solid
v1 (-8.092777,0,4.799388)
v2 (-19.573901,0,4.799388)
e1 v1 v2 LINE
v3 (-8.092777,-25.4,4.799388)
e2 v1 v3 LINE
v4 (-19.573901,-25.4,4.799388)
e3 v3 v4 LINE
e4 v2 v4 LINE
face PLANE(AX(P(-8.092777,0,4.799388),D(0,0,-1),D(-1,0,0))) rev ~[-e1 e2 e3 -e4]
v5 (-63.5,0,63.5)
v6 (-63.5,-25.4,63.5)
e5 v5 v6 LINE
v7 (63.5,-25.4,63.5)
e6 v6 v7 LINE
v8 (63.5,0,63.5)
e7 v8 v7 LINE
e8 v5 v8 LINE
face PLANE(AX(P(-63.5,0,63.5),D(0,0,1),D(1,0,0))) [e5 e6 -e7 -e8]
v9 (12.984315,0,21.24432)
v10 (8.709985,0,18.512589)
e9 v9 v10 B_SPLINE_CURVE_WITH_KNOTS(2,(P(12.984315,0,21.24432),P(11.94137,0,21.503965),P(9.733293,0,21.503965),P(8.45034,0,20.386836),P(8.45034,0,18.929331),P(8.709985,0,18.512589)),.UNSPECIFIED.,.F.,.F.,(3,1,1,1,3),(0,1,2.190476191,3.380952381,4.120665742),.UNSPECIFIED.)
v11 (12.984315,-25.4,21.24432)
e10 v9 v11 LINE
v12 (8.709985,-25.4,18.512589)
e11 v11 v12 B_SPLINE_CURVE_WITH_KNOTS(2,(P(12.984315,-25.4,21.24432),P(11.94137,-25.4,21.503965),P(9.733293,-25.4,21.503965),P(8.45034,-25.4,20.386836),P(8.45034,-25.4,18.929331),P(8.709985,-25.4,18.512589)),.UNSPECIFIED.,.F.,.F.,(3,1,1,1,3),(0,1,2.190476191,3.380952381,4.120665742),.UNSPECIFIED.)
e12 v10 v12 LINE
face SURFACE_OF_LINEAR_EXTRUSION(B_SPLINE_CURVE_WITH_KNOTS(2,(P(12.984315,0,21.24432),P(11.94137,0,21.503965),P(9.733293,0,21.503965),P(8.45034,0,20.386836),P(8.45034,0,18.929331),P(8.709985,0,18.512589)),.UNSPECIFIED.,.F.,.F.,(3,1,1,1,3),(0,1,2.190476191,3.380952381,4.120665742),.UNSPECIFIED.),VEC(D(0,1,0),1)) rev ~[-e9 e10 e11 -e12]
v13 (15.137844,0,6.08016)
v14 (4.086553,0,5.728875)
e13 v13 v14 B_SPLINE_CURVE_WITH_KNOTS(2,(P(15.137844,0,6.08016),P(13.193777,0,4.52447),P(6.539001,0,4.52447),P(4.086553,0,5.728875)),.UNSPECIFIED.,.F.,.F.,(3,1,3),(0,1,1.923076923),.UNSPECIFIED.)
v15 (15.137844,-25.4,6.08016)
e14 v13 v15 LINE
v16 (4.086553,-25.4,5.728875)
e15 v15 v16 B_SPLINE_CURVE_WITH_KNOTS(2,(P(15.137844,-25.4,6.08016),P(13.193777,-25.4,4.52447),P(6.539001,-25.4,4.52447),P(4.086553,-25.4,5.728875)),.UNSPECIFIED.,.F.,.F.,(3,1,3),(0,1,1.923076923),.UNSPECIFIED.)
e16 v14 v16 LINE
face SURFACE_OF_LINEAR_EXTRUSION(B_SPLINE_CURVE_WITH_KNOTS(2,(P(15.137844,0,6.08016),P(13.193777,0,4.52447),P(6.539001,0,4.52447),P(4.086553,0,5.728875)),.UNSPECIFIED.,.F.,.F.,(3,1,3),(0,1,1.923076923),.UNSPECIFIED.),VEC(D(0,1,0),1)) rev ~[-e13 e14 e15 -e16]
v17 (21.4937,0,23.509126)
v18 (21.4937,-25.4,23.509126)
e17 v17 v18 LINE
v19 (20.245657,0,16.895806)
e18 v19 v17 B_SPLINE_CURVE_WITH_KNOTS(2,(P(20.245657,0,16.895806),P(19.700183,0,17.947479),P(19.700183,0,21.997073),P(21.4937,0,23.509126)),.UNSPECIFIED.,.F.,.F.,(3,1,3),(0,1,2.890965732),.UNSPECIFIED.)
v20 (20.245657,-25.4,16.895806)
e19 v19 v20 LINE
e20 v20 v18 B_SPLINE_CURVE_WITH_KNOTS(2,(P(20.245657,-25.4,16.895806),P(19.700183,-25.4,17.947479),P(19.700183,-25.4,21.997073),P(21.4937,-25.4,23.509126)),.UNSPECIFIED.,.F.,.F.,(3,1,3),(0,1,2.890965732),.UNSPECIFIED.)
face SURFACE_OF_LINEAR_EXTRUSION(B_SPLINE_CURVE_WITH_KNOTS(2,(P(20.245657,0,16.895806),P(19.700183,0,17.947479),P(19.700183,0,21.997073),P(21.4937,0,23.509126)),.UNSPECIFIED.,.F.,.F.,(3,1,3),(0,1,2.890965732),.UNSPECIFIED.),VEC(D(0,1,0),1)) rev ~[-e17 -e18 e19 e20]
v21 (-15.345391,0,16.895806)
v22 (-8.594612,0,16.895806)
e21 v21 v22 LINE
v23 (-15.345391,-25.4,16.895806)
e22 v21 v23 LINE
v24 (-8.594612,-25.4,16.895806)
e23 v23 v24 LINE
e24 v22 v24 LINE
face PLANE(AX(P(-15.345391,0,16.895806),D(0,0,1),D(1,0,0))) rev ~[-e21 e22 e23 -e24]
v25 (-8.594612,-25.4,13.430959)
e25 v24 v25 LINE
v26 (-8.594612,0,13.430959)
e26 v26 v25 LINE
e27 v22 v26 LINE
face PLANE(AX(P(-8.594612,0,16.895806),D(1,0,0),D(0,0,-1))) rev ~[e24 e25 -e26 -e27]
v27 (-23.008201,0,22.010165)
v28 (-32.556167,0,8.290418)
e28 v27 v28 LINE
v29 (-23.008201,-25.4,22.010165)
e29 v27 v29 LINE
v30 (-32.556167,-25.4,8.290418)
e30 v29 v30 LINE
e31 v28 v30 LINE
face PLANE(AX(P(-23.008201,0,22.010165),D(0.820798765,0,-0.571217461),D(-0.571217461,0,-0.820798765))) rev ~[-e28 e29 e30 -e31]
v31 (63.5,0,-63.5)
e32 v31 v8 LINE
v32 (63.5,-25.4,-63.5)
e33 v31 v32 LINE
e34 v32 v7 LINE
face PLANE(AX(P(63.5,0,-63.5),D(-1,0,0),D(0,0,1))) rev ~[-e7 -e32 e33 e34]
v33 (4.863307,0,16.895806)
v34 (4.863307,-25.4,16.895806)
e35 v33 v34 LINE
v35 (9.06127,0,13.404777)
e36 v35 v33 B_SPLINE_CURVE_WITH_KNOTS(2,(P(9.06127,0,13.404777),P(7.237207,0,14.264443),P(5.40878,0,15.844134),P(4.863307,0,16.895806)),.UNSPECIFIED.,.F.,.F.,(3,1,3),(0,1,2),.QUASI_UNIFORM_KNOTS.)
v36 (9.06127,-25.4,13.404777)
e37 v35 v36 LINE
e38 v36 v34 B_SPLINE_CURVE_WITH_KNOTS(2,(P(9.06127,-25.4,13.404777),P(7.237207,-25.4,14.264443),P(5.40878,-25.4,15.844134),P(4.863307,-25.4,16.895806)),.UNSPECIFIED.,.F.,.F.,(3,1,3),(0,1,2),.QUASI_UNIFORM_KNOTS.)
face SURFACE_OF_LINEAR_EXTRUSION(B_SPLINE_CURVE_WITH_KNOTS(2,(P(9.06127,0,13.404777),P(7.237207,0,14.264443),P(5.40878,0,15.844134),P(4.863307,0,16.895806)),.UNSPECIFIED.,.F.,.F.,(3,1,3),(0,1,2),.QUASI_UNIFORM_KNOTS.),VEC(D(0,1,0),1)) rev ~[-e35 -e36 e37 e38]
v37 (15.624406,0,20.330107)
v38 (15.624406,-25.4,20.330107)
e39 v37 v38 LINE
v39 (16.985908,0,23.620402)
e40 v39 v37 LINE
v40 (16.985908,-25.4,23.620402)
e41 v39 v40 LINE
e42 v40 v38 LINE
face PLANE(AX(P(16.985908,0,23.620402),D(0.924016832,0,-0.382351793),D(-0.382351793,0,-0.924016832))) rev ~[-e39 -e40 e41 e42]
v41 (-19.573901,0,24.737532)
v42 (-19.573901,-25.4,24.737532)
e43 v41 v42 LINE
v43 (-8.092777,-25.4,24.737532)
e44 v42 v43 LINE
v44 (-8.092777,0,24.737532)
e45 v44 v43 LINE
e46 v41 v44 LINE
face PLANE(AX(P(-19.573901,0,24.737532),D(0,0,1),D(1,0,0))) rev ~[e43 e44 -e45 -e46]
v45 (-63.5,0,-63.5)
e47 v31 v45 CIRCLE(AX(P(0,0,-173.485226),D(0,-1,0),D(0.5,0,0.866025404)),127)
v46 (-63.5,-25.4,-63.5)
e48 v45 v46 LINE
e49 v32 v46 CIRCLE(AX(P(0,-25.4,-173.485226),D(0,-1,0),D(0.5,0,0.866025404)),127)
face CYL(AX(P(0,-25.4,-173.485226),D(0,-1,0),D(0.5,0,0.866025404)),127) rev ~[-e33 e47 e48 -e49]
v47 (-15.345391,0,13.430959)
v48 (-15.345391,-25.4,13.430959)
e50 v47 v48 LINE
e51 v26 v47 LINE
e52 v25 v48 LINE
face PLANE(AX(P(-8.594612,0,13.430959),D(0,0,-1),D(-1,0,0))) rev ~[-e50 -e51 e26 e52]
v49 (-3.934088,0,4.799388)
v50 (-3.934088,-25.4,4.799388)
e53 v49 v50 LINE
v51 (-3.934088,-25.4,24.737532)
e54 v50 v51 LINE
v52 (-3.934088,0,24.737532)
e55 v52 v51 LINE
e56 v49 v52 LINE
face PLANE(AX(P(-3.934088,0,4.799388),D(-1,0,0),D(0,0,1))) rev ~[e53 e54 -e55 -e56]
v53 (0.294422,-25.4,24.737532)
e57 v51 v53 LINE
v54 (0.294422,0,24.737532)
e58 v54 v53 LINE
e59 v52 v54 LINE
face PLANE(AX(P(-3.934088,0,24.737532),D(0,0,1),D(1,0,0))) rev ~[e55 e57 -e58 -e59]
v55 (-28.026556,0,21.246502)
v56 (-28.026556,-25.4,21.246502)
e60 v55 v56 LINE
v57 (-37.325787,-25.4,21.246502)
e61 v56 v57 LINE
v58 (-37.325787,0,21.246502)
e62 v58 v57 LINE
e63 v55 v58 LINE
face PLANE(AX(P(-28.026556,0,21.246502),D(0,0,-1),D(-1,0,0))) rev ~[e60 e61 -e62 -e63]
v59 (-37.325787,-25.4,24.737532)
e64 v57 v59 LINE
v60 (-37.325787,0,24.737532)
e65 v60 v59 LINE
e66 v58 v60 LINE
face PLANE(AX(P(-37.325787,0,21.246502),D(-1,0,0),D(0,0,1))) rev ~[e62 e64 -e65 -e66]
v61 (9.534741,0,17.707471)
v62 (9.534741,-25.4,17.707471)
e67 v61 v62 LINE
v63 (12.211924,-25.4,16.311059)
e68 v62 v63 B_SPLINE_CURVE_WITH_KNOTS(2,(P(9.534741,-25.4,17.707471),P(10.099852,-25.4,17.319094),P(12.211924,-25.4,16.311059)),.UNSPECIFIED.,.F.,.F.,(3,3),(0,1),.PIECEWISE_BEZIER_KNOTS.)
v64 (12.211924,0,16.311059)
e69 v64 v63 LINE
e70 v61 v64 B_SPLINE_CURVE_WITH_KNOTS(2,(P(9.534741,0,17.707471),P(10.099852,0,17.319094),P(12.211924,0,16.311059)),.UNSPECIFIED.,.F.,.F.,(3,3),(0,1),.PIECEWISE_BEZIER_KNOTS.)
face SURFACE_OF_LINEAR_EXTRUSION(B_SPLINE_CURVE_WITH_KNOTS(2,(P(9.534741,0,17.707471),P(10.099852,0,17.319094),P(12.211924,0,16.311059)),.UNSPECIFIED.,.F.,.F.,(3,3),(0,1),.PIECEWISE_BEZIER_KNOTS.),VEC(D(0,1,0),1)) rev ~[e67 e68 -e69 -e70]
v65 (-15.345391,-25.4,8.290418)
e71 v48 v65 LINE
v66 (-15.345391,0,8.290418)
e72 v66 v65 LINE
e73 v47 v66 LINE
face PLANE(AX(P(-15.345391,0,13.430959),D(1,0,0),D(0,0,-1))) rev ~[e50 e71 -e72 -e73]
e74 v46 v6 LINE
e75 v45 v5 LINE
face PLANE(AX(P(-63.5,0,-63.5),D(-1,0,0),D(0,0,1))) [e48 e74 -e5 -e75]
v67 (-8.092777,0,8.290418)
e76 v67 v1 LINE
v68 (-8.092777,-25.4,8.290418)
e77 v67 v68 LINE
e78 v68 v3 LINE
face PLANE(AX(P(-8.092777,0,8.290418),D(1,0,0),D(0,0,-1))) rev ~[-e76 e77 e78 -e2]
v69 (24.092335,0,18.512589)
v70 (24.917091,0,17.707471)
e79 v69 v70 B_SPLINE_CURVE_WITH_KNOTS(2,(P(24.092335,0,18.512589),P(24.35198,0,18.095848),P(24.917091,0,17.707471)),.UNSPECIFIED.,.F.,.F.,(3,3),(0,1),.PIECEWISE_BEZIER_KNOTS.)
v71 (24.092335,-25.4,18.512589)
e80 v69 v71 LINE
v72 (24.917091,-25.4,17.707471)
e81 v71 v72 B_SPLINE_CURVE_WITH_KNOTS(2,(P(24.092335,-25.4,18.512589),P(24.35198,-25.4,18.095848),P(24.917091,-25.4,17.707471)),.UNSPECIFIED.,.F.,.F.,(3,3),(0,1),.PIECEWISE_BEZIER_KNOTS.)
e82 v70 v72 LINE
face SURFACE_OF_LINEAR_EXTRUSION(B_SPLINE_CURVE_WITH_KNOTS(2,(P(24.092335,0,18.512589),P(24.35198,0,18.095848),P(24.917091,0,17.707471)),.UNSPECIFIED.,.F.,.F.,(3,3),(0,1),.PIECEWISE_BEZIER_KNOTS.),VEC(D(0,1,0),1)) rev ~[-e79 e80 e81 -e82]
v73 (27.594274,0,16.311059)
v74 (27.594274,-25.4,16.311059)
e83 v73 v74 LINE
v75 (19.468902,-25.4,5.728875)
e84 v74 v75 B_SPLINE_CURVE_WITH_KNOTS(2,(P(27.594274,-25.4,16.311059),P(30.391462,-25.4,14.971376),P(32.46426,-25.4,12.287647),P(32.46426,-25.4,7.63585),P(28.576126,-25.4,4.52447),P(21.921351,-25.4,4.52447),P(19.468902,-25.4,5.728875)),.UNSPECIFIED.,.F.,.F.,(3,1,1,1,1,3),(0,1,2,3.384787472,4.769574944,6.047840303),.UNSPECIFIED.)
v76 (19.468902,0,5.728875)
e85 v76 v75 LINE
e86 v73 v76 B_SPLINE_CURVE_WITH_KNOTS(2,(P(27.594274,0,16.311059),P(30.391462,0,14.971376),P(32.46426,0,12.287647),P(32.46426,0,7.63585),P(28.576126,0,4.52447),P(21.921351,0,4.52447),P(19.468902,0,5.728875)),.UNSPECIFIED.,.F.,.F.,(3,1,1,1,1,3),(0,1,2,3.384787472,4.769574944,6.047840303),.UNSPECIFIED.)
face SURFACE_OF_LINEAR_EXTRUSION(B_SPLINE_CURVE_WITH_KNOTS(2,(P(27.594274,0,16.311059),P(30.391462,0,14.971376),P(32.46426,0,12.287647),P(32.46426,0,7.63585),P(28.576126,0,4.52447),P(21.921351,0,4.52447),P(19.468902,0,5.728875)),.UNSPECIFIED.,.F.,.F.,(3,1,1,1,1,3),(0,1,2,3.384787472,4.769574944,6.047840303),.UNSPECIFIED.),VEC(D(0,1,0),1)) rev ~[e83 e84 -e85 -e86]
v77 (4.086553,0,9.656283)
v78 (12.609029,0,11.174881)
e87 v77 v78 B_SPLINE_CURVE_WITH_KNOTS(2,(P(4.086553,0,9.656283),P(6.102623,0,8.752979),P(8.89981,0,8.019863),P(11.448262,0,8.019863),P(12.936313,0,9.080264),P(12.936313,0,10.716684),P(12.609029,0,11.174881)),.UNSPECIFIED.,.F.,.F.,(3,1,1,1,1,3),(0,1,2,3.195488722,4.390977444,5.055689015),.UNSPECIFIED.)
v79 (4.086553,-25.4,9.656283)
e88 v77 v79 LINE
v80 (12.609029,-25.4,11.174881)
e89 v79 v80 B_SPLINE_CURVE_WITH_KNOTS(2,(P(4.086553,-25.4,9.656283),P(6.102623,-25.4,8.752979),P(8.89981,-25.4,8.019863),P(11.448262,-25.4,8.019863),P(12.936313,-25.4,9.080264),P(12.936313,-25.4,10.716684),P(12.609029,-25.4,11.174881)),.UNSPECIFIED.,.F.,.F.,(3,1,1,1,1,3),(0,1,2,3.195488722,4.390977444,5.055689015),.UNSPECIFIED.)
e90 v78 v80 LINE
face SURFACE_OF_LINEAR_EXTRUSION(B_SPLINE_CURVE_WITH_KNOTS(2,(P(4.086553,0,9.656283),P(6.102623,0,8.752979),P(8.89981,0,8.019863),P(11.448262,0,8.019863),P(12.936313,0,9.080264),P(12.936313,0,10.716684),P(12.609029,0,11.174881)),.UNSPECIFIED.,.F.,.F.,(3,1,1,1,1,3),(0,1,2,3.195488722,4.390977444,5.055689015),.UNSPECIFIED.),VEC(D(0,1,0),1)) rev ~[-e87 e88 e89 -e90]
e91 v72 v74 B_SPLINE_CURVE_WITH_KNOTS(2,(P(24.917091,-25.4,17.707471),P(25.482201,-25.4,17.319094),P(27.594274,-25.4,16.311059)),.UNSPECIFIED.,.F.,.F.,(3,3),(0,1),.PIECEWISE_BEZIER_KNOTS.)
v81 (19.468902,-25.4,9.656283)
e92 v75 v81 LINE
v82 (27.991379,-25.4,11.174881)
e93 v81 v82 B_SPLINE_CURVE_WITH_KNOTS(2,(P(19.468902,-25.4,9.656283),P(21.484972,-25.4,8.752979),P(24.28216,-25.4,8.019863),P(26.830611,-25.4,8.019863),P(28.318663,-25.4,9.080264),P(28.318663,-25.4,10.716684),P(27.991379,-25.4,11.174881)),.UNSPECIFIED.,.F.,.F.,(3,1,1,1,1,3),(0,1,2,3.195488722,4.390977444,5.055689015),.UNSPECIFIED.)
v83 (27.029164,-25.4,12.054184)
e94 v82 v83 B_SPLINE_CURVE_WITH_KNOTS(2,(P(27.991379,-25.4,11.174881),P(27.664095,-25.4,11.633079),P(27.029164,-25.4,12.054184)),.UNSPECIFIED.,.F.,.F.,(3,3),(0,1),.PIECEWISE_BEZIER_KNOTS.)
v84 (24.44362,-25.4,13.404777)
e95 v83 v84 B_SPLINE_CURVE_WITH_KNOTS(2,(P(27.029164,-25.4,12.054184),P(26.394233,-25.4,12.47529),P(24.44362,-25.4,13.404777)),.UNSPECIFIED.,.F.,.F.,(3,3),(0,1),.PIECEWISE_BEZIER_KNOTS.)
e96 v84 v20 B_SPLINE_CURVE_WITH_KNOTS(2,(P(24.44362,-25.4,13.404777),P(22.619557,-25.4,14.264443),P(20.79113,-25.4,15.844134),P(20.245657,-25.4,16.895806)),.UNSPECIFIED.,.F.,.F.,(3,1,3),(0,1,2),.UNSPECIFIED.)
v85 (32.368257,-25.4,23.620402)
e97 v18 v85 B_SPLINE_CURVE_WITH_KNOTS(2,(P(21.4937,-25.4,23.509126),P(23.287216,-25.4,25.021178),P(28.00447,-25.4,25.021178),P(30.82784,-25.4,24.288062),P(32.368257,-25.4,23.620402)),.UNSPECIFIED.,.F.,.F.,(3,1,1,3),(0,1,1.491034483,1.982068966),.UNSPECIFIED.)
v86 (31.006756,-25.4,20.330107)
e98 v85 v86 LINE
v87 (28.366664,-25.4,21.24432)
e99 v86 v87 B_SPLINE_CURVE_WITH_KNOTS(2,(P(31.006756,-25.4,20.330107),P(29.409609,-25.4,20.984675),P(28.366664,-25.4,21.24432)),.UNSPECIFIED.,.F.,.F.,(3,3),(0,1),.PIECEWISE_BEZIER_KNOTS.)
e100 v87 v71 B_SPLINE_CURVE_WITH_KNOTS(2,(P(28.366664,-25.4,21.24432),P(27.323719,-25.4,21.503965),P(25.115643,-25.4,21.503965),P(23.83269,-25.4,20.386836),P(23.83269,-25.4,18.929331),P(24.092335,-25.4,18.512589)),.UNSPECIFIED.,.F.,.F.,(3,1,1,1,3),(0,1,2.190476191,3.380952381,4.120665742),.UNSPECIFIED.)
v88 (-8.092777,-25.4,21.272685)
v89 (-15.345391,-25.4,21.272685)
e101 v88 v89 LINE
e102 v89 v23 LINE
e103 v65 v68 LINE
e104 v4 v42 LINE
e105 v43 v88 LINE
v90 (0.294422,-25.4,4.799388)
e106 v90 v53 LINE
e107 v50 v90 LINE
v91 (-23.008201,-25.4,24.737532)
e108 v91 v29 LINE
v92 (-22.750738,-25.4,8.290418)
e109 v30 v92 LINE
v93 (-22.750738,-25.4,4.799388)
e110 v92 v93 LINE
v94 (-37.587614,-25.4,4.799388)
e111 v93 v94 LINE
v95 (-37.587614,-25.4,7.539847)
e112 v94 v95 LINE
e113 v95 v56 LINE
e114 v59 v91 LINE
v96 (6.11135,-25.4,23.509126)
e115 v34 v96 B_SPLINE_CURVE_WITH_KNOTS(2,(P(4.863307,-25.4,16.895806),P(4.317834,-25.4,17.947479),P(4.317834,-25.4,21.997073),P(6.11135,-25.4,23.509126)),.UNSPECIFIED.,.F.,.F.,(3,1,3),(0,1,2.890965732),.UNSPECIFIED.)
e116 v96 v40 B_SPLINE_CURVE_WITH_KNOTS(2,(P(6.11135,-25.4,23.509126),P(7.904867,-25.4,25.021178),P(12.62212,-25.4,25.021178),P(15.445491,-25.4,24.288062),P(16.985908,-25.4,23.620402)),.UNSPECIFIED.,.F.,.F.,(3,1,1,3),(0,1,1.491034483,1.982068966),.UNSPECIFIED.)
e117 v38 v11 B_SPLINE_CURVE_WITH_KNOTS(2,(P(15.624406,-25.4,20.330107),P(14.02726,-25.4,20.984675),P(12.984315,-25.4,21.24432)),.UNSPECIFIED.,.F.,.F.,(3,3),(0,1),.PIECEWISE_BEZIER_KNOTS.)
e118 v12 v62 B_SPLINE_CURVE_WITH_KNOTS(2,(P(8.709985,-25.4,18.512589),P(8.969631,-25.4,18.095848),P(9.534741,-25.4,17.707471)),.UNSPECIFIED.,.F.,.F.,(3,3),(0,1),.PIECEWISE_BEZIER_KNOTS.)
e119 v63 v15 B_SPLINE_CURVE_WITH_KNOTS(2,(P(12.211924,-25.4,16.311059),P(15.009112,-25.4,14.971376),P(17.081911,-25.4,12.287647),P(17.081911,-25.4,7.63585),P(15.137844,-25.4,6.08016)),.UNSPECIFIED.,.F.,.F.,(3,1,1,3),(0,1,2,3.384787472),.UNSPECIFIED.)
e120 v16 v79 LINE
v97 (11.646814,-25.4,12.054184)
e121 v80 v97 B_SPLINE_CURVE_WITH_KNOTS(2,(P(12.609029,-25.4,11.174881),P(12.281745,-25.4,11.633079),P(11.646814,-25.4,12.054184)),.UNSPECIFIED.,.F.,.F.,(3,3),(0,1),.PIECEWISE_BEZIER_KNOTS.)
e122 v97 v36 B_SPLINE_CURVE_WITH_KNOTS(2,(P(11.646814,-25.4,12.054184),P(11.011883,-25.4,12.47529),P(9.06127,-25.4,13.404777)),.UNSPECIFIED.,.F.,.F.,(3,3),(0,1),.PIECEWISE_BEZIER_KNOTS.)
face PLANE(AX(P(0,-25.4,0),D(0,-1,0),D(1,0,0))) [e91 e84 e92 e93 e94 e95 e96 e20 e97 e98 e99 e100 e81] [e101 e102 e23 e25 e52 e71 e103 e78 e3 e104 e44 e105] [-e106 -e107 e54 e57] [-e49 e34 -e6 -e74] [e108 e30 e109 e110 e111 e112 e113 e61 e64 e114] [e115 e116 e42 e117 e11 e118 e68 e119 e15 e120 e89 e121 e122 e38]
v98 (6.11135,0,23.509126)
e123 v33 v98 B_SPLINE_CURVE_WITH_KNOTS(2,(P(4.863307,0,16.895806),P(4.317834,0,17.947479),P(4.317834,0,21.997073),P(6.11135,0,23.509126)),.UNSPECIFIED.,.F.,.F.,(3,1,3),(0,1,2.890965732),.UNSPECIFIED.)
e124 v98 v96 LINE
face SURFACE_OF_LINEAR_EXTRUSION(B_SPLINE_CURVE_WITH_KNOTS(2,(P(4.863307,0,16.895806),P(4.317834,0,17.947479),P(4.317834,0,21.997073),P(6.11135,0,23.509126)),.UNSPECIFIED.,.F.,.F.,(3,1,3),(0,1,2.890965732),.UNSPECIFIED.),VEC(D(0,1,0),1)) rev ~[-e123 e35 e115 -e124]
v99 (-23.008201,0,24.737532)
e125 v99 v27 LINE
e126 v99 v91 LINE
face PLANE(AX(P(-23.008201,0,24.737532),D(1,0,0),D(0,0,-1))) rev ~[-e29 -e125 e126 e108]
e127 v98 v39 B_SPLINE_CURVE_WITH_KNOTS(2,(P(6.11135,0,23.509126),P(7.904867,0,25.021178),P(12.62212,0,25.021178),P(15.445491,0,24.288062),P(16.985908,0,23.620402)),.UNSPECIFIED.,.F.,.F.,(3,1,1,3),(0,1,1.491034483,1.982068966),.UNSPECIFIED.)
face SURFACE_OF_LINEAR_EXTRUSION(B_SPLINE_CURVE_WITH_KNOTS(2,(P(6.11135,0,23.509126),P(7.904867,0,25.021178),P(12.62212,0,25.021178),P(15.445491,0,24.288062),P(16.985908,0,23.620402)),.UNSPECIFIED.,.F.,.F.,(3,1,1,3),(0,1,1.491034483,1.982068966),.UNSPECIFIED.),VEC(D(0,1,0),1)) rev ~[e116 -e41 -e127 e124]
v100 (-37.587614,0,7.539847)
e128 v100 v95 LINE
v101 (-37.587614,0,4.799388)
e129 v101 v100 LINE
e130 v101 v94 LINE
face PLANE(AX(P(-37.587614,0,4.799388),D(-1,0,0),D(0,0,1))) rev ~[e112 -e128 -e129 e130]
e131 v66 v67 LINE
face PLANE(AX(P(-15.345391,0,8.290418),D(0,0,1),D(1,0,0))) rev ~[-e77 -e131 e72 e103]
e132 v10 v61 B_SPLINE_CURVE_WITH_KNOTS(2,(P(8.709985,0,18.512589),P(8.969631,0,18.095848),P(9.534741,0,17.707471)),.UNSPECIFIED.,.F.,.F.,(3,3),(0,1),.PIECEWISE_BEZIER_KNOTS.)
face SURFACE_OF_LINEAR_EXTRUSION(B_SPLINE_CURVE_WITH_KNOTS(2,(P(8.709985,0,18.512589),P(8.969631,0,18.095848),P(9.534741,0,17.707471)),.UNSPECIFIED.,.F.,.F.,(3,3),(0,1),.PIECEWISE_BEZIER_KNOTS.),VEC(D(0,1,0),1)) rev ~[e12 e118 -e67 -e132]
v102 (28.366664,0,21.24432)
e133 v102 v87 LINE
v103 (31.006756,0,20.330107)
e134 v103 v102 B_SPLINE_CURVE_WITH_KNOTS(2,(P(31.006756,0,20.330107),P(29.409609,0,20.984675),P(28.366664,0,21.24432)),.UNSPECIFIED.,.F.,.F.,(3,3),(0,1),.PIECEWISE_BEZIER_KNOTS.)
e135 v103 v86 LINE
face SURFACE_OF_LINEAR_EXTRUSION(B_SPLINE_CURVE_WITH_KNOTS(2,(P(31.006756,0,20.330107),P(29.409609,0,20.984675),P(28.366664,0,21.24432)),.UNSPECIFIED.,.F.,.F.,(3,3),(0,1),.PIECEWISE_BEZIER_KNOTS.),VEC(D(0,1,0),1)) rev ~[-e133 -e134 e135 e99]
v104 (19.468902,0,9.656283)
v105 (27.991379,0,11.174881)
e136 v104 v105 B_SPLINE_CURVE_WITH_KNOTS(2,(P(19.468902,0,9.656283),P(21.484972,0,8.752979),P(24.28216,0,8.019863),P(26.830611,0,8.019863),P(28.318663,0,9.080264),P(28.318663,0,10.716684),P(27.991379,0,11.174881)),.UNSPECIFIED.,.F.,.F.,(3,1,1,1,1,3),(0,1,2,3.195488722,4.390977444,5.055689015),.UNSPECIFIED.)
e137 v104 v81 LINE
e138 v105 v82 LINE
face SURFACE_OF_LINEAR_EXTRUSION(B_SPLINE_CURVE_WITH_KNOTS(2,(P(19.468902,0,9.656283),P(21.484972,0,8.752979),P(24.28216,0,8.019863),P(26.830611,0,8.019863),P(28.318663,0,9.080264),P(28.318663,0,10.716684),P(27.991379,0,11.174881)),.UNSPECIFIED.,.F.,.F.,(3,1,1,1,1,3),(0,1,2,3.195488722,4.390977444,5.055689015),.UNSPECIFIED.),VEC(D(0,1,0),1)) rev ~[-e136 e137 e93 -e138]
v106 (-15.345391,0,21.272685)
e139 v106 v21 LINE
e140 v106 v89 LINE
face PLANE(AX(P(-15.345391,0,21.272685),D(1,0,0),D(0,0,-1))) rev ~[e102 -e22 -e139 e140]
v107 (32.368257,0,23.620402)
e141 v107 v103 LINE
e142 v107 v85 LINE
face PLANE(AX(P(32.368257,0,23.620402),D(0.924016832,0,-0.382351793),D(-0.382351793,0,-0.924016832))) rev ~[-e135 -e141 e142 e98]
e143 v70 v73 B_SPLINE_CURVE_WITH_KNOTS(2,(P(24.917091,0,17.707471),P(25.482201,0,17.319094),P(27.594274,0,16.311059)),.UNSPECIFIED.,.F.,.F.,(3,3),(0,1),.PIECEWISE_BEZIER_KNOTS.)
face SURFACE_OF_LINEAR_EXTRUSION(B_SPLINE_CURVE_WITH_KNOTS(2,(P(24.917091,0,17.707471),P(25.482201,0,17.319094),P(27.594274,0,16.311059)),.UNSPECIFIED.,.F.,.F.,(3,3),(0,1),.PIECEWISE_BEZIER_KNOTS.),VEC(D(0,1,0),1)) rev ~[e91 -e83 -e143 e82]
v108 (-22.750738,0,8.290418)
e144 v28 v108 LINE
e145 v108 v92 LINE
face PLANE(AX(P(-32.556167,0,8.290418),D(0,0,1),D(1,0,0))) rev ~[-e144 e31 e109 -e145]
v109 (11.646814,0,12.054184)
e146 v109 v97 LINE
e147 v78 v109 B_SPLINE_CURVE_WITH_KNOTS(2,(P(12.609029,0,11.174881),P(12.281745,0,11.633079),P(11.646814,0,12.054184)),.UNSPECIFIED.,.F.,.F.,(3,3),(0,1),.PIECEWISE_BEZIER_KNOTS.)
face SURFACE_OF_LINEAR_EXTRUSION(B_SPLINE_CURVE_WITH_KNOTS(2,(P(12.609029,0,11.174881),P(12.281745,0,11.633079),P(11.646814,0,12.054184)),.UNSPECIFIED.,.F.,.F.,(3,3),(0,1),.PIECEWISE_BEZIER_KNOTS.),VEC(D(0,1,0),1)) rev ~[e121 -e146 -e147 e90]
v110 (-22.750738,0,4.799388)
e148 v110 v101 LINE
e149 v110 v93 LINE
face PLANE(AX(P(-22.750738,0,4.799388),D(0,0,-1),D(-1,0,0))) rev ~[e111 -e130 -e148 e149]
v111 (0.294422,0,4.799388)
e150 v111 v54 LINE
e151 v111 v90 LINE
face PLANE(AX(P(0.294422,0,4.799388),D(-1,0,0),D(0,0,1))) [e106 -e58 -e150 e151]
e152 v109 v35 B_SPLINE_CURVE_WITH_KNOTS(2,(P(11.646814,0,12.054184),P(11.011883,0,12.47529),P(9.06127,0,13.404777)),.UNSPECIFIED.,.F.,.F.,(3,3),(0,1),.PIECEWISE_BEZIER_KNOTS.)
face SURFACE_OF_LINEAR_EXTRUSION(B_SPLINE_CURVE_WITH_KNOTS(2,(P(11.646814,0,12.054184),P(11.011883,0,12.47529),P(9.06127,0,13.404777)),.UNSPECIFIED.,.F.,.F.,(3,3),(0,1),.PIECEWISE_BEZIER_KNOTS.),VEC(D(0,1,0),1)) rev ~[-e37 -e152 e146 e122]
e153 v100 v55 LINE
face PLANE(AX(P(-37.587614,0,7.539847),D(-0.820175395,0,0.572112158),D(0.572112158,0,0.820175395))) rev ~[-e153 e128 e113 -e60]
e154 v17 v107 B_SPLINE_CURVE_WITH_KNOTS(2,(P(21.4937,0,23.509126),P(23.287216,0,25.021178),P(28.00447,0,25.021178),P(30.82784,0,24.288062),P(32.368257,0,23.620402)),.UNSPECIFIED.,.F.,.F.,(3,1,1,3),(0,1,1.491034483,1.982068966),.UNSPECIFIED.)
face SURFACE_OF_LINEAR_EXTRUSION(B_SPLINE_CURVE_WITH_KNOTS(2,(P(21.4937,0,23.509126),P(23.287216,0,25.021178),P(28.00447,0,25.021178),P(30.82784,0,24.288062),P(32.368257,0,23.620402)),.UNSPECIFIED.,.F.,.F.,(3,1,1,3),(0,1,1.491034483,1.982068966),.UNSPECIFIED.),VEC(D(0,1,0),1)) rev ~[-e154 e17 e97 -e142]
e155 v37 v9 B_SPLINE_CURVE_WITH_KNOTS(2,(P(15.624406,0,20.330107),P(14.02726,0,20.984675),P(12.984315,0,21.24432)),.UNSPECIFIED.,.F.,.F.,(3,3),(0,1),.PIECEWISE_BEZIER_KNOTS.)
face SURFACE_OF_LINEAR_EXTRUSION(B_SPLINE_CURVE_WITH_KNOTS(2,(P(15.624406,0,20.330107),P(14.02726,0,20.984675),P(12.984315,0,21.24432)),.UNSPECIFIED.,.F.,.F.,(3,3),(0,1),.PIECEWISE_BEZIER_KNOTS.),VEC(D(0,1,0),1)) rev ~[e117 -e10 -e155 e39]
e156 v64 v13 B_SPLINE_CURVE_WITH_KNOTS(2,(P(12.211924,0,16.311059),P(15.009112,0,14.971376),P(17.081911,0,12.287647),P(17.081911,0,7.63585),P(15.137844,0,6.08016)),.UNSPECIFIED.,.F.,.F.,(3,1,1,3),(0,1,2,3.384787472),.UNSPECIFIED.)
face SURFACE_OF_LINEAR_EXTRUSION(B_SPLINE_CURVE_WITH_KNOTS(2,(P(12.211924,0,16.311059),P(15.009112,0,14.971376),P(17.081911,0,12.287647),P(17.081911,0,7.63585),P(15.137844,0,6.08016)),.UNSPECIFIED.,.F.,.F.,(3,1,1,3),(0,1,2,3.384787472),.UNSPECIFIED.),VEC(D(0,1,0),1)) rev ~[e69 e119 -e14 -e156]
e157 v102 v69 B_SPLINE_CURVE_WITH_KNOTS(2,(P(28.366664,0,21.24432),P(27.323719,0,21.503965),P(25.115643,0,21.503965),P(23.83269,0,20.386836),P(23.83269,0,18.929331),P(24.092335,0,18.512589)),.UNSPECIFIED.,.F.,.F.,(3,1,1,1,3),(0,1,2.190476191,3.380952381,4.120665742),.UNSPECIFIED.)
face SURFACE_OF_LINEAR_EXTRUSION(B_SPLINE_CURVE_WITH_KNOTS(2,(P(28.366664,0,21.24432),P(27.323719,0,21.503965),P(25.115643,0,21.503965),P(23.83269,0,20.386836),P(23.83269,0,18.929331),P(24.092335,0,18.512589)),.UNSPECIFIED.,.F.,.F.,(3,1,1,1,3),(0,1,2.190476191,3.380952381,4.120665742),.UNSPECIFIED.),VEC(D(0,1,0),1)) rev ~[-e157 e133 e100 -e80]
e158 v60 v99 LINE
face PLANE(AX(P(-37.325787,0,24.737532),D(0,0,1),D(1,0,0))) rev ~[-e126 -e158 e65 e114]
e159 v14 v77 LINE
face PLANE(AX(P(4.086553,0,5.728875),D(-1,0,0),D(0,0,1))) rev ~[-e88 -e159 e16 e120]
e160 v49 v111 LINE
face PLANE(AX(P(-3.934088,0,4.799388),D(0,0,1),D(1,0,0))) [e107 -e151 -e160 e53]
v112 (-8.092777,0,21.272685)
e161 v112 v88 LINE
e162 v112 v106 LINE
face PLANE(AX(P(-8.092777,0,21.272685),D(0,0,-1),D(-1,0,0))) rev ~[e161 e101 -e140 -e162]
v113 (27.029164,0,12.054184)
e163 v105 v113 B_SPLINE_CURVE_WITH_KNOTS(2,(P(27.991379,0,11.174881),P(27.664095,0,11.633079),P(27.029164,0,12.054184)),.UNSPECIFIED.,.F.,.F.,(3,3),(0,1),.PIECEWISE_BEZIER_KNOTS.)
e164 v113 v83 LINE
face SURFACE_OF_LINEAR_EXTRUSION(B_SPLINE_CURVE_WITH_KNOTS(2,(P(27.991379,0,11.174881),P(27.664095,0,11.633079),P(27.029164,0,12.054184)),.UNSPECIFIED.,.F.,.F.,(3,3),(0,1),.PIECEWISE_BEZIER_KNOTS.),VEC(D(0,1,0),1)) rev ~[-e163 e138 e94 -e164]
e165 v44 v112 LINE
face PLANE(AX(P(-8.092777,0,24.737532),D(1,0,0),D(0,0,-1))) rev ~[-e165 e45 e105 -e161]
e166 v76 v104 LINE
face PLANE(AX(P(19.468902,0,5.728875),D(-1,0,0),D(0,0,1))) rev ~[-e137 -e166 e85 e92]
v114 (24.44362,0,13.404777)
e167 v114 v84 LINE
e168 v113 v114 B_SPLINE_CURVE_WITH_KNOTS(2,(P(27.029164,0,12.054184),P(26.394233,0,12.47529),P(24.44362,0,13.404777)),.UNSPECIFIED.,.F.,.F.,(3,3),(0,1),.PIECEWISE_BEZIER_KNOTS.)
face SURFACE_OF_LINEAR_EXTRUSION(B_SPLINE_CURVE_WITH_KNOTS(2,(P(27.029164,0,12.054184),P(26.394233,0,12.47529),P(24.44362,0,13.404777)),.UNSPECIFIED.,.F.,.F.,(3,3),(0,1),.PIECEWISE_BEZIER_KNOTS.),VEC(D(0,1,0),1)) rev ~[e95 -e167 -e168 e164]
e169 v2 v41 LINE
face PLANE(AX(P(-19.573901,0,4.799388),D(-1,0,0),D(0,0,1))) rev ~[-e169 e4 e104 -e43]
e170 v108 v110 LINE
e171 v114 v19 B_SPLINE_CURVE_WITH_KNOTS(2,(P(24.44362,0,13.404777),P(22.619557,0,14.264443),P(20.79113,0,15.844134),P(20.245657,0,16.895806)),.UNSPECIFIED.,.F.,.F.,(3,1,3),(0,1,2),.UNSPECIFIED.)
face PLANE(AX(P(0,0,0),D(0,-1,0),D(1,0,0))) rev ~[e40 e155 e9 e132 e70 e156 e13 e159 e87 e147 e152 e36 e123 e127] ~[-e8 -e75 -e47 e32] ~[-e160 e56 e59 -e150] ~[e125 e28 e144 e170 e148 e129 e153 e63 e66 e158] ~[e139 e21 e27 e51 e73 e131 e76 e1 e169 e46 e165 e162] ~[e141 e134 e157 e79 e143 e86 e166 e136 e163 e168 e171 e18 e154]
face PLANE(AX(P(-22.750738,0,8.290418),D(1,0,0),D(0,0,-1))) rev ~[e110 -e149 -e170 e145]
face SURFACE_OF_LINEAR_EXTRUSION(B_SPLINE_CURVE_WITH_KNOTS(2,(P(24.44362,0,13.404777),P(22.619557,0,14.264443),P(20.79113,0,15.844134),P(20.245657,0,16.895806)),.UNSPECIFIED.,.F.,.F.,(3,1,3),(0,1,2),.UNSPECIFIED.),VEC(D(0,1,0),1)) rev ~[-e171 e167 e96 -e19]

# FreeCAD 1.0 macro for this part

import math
import FreeCAD as App
import Part
import Sketcher
from FreeCAD import Vector
Q = App.Units.Quantity

doc = App.newDocument("Part")
body = doc.addObject("PartDesign::Body", "Body")

# Sketch on XZ plane
sketch1 = body.newObject("Sketcher::SketchObject", "Sketch")
sketch1.AttachmentSupport = (doc.getObject("XZ_Plane"), [""])
sketch1.MapMode = "FlatFace"
sketch1.addGeometry(Part.LineSegment(Vector(-63.5, 63.5, 0), Vector(-63.5, -63.5, 0)), False)
sketch1.addGeometry(Part.LineSegment(Vector(-63.5, -63.5, 0), Vector(63.5, -63.5, 0)), False)
sketch1.addGeometry(Part.LineSegment(Vector(63.5, -63.5, 0), Vector(63.5, 63.5, 0)), False)
sketch1.addGeometry(Part.LineSegment(Vector(63.5, 63.5, 0), Vector(-63.5, 63.5, 0)), False)
sketch1.addGeometry(Part.LineSegment(Vector(-32.556167, 8.290418, 0), Vector(-22.750738, 8.290418, 0)), False)
sketch1.addGeometry(Part.LineSegment(Vector(-22.750738, 8.290418, 0), Vector(-22.750738, 4.799388, 0)), False)
sketch1.addGeometry(Part.LineSegment(Vector(-22.750738, 4.799388, 0), Vector(-37.587614, 4.799388, 0)), False)
sketch1.addGeometry(Part.LineSegment(Vector(-37.587614, 4.799388, 0), Vector(-37.587614, 7.539847, 0)), False)
sketch1.addGeometry(Part.LineSegment(Vector(-37.587614, 7.539847, 0), Vector(-28.026556, 21.246502, 0)), False)
sketch1.addGeometry(Part.LineSegment(Vector(-28.026556, 21.246502, 0), Vector(-37.325787, 21.246502, 0)), False)
sketch1.addGeometry(Part.LineSegment(Vector(-37.325787, 21.246502, 0), Vector(-37.325787, 24.737532, 0)), False)
sketch1.addGeometry(Part.LineSegment(Vector(-37.325787, 24.737532, 0), Vector(-23.008201, 24.737532, 0)), False)
sketch1.addGeometry(Part.LineSegment(Vector(-23.008201, 24.737532, 0), Vector(-23.008201, 22.010165, 0)), False)
sketch1.addGeometry(Part.LineSegment(Vector(-23.008201, 22.010165, 0), Vector(-32.556167, 8.290418, 0)), False)
sketch1.addGeometry(Part.LineSegment(Vector(-15.345391, 8.290418, 0), Vector(-8.092777, 8.290418, 0)), False)
sketch1.addGeometry(Part.LineSegment(Vector(-8.092777, 8.290418, 0), Vector(-8.092777, 4.799388, 0)), False)
sketch1.addGeometry(Part.LineSegment(Vector(-8.092777, 4.799388, 0), Vector(-19.573901, 4.799388, 0)), False)
sketch1.addGeometry(Part.LineSegment(Vector(-19.573901, 4.799388, 0), Vector(-19.573901, 24.737532, 0)), False)
sketch1.addGeometry(Part.LineSegment(Vector(-19.573901, 24.737532, 0), Vector(-8.092777, 24.737532, 0)), False)
sketch1.addGeometry(Part.LineSegment(Vector(-8.092777, 24.737532, 0), Vector(-8.092777, 21.272685, 0)), False)
sketch1.addGeometry(Part.LineSegment(Vector(-8.092777, 21.272685, 0), Vector(-15.345391, 21.272685, 0)), False)
sketch1.addGeometry(Part.LineSegment(Vector(-15.345391, 21.272685, 0), Vector(-15.345391, 16.895806, 0)), False)
sketch1.addGeometry(Part.LineSegment(Vector(-15.345391, 16.895806, 0), Vector(-8.594612, 16.895806, 0)), False)
sketch1.addGeometry(Part.LineSegment(Vector(-8.594612, 16.895806, 0), Vector(-8.594612, 13.430959, 0)), False)
sketch1.addGeometry(Part.LineSegment(Vector(-8.594612, 13.430959, 0), Vector(-15.345391, 13.430959, 0)), False)
sketch1.addGeometry(Part.LineSegment(Vector(-15.345391, 13.430959, 0), Vector(-15.345391, 8.290418, 0)), False)
sketch1.addGeometry(Part.LineSegment(Vector(0.294422, 4.799388, 0), Vector(-3.934088, 4.799388, 0)), False)
sketch1.addGeometry(Part.LineSegment(Vector(-3.934088, 4.799388, 0), Vector(-3.934088, 24.737532, 0)), False)
sketch1.addGeometry(Part.LineSegment(Vector(-3.934088, 24.737532, 0), Vector(0.294422, 24.737532, 0)), False)
sketch1.addGeometry(Part.LineSegment(Vector(0.294422, 24.737532, 0), Vector(0.294422, 4.799388, 0)), False)
sketch1.addGeometry(Part.BSplineCurve([Vector(12.211924, 16.311059, 0), Vector(15.009112, 14.971376, 0), Vector(17.081911, 12.287647, 0), Vector(17.081911, 7.63585, 0), Vector(15.137844, 6.08016, 0)], [3, 1, 1, 3], [0, 1, 2, 3.384787472], False, 2, [1, 1, 1, 1, 1], False), False)
sketch1.addGeometry(Part.BSplineCurve([Vector(15.137844, 6.08016, 0), Vector(13.193777, 4.52447, 0), Vector(6.539001, 4.52447, 0), Vector(4.086553, 5.728875, 0)], [3, 1, 3], [0, 1, 1.923076923], False, 2, [1, 1, 1, 1], False), False)
sketch1.addGeometry(Part.LineSegment(Vector(4.086553, 5.728875, 0), Vector(4.086553, 9.656283, 0)), False)
sketch1.addGeometry(Part.BSplineCurve([Vector(4.086553, 9.656283, 0), Vector(6.102623, 8.752979, 0), Vector(8.89981, 8.019863, 0), Vector(11.448262, 8.019863, 0), Vector(12.936313, 9.080264, 0), Vector(12.936313, 10.716684, 0), Vector(12.609029, 11.174881, 0)], [3, 1, 1, 1, 1, 3], [0, 1, 2, 3.195488722, 4.390977444, 5.055689015], False, 2, [1, 1, 1, 1, 1, 1, 1], False), False)
sketch1.addGeometry(Part.BSplineCurve([Vector(12.609029, 11.174881, 0), Vector(12.281745, 11.633079, 0), Vector(11.646814, 12.054184, 0)], [3, 3], [0, 1], False, 2, [1, 1, 1], False), False)
sketch1.addGeometry(Part.BSplineCurve([Vector(11.646814, 12.054184, 0), Vector(11.011883, 12.47529, 0), Vector(9.06127, 13.404777, 0)], [3, 3], [0, 1], False, 2, [1, 1, 1], False), False)
sketch1.addGeometry(Part.BSplineCurve([Vector(9.06127, 13.404777, 0), Vector(7.237207, 14.264443, 0), Vector(5.40878, 15.844134, 0), Vector(4.863307, 16.895806, 0)], [3, 1, 3], [0, 1, 2], False, 2, [1, 1, 1, 1], False), False)
sketch1.addGeometry(Part.BSplineCurve([Vector(4.863307, 16.895806, 0), Vector(4.317834, 17.947479, 0), Vector(4.317834, 21.997073, 0), Vector(6.11135, 23.509126, 0)], [3, 1, 3], [0, 1, 2.890965732], False, 2, [1, 1, 1, 1], False), False)
sketch1.addGeometry(Part.BSplineCurve([Vector(6.11135, 23.509126, 0), Vector(7.904867, 25.021178, 0), Vector(12.62212, 25.021178, 0), Vector(15.445491, 24.288062, 0), Vector(16.985908, 23.620402, 0)], [3, 1, 1, 3], [0, 1, 1.491034483, 1.982068966], False, 2, [1, 1, 1, 1, 1], False), False)
sketch1.addGeometry(Part.LineSegment(Vector(16.985908, 23.620402, 0), Vector(15.624406, 20.330107, 0)), False)
sketch1.addGeometry(Part.BSplineCurve([Vector(15.624406, 20.330107, 0), Vector(14.02726, 20.984675, 0), Vector(12.984315, 21.24432, 0)], [3, 3], [0, 1], False, 2, [1, 1, 1], False), False)
sketch1.addGeometry(Part.BSplineCurve([Vector(12.984315, 21.24432, 0), Vector(11.94137, 21.503965, 0), Vector(9.733293, 21.503965, 0), Vector(8.45034, 20.386836, 0), Vector(8.45034, 18.929331, 0), Vector(8.709985, 18.512589, 0)], [3, 1, 1, 1, 3], [0, 1, 2.190476191, 3.380952381, 4.120665742], False, 2, [1, 1, 1, 1, 1, 1], False), False)
sketch1.addGeometry(Part.BSplineCurve([Vector(8.709985, 18.512589, 0), Vector(8.969631, 18.095848, 0), Vector(9.534741, 17.707471, 0)], [3, 3], [0, 1], False, 2, [1, 1, 1], False), False)
sketch1.addGeometry(Part.BSplineCurve([Vector(9.534741, 17.707471, 0), Vector(10.099852, 17.319094, 0), Vector(12.211924, 16.311059, 0)], [3, 3], [0, 1], False, 2, [1, 1, 1], False), False)
sketch1.addGeometry(Part.BSplineCurve([Vector(27.594274, 16.311059, 0), Vector(30.391462, 14.971376, 0), Vector(32.46426, 12.287647, 0), Vector(32.46426, 7.63585, 0), Vector(28.576126, 4.52447, 0), Vector(21.921351, 4.52447, 0), Vector(19.468902, 5.728875, 0)], [3, 1, 1, 1, 1, 3], [0, 1, 2, 3.384787472, 4.769574944, 6.047840303], False, 2, [1, 1, 1, 1, 1, 1, 1], False), False)
sketch1.addGeometry(Part.LineSegment(Vector(19.468902, 5.728875, 0), Vector(19.468902, 9.656283, 0)), False)
sketch1.addGeometry(Part.BSplineCurve([Vector(19.468902, 9.656283, 0), Vector(21.484972, 8.752979, 0), Vector(24.28216, 8.019863, 0), Vector(26.830611, 8.019863, 0), Vector(28.318663, 9.080264, 0), Vector(28.318663, 10.716684, 0), Vector(27.991379, 11.174881, 0)], [3, 1, 1, 1, 1, 3], [0, 1, 2, 3.195488722, 4.390977444, 5.055689015], False, 2, [1, 1, 1, 1, 1, 1, 1], False), False)
sketch1.addGeometry(Part.BSplineCurve([Vector(27.991379, 11.174881, 0), Vector(27.664095, 11.633079, 0), Vector(27.029164, 12.054184, 0)], [3, 3], [0, 1], False, 2, [1, 1, 1], False), False)
sketch1.addGeometry(Part.BSplineCurve([Vector(27.029164, 12.054184, 0), Vector(26.394233, 12.47529, 0), Vector(24.44362, 13.404777, 0)], [3, 3], [0, 1], False, 2, [1, 1, 1], False), False)
sketch1.addGeometry(Part.BSplineCurve([Vector(24.44362, 13.404777, 0), Vector(22.619557, 14.264443, 0), Vector(20.79113, 15.844134, 0), Vector(20.245657, 16.895806, 0)], [3, 1, 3], [0, 1, 2], False, 2, [1, 1, 1, 1], False), False)
sketch1.addGeometry(Part.BSplineCurve([Vector(20.245657, 16.895806, 0), Vector(19.700183, 17.947479, 0), Vector(19.700183, 21.997073, 0), Vector(21.4937, 23.509126, 0)], [3, 1, 3], [0, 1, 2.890965732], False, 2, [1, 1, 1, 1], False), False)
sketch1.addGeometry(Part.BSplineCurve([Vector(21.4937, 23.509126, 0), Vector(23.287216, 25.021178, 0), Vector(28.00447, 25.021178, 0), Vector(30.82784, 24.288062, 0), Vector(32.368257, 23.620402, 0)], [3, 1, 1, 3], [0, 1, 1.491034483, 1.982068966], False, 2, [1, 1, 1, 1, 1], False), False)
sketch1.addGeometry(Part.LineSegment(Vector(32.368257, 23.620402, 0), Vector(31.006756, 20.330107, 0)), False)
sketch1.addGeometry(Part.BSplineCurve([Vector(31.006756, 20.330107, 0), Vector(29.409609, 20.984675, 0), Vector(28.366664, 21.24432, 0)], [3, 3], [0, 1], False, 2, [1, 1, 1], False), False)
sketch1.addGeometry(Part.BSplineCurve([Vector(28.366664, 21.24432, 0), Vector(27.323719, 21.503965, 0), Vector(25.115643, 21.503965, 0), Vector(23.83269, 20.386836, 0), Vector(23.83269, 18.929331, 0), Vector(24.092335, 18.512589, 0)], [3, 1, 1, 1, 3], [0, 1, 2.190476191, 3.380952381, 4.120665742], False, 2, [1, 1, 1, 1, 1, 1], False), False)
sketch1.addGeometry(Part.BSplineCurve([Vector(24.092335, 18.512589, 0), Vector(24.35198, 18.095848, 0), Vector(24.917091, 17.707471, 0)], [3, 3], [0, 1], False, 2, [1, 1, 1], False), False)
sketch1.addGeometry(Part.BSplineCurve([Vector(24.917091, 17.707471, 0), Vector(25.482201, 17.319094, 0), Vector(27.594274, 16.311059, 0)], [3, 3], [0, 1], False, 2, [1, 1, 1], False), False)
sketch1.addConstraint(Sketcher.Constraint("Block", 30))
sketch1.addConstraint(Sketcher.Constraint("Block", 31))
sketch1.addConstraint(Sketcher.Constraint("Block", 33))
sketch1.addConstraint(Sketcher.Constraint("Block", 34))
sketch1.addConstraint(Sketcher.Constraint("Block", 35))
sketch1.addConstraint(Sketcher.Constraint("Block", 36))
sketch1.addConstraint(Sketcher.Constraint("Block", 37))
sketch1.addConstraint(Sketcher.Constraint("Block", 38))
sketch1.addConstraint(Sketcher.Constraint("Block", 40))
sketch1.addConstraint(Sketcher.Constraint("Block", 41))
sketch1.addConstraint(Sketcher.Constraint("Block", 42))
sketch1.addConstraint(Sketcher.Constraint("Block", 43))
sketch1.addConstraint(Sketcher.Constraint("Block", 44))
sketch1.addConstraint(Sketcher.Constraint("Block", 46))
sketch1.addConstraint(Sketcher.Constraint("Block", 47))
sketch1.addConstraint(Sketcher.Constraint("Block", 48))
sketch1.addConstraint(Sketcher.Constraint("Block", 49))
sketch1.addConstraint(Sketcher.Constraint("Block", 50))
sketch1.addConstraint(Sketcher.Constraint("Block", 51))
sketch1.addConstraint(Sketcher.Constraint("Block", 53))
sketch1.addConstraint(Sketcher.Constraint("Block", 54))
sketch1.addConstraint(Sketcher.Constraint("Block", 55))
sketch1.addConstraint(Sketcher.Constraint("Block", 56))
sketch1.addConstraint(Sketcher.Constraint("Coincident", 0, 2, 1, 1))
sketch1.addConstraint(Sketcher.Constraint("Coincident", 1, 2, 2, 1))
sketch1.addConstraint(Sketcher.Constraint("Coincident", 2, 2, 3, 1))
sketch1.addConstraint(Sketcher.Constraint("Coincident", 3, 2, 0, 1))
sketch1.addConstraint(Sketcher.Constraint("Coincident", 4, 2, 5, 1))
sketch1.addConstraint(Sketcher.Constraint("Coincident", 5, 2, 6, 1))
sketch1.addConstraint(Sketcher.Constraint("Coincident", 6, 2, 7, 1))
sketch1.addConstraint(Sketcher.Constraint("Coincident", 7, 2, 8, 1))
sketch1.addConstraint(Sketcher.Constraint("Coincident", 8, 2, 9, 1))
sketch1.addConstraint(Sketcher.Constraint("Coincident", 9, 2, 10, 1))
sketch1.addConstraint(Sketcher.Constraint("Coincident", 10, 2, 11, 1))
sketch1.addConstraint(Sketcher.Constraint("Coincident", 11, 2, 12, 1))
sketch1.addConstraint(Sketcher.Constraint("Coincident", 12, 2, 13, 1))
sketch1.addConstraint(Sketcher.Constraint("Coincident", 13, 2, 4, 1))
sketch1.addConstraint(Sketcher.Constraint("Coincident", 14, 2, 15, 1))
sketch1.addConstraint(Sketcher.Constraint("Coincident", 15, 2, 16, 1))
sketch1.addConstraint(Sketcher.Constraint("Coincident", 16, 2, 17, 1))
sketch1.addConstraint(Sketcher.Constraint("Coincident", 17, 2, 18, 1))
sketch1.addConstraint(Sketcher.Constraint("Coincident", 18, 2, 19, 1))
sketch1.addConstraint(Sketcher.Constraint("Coincident", 19, 2, 20, 1))
sketch1.addConstraint(Sketcher.Constraint("Coincident", 20, 2, 21, 1))
sketch1.addConstraint(Sketcher.Constraint("Coincident", 21, 2, 22, 1))
sketch1.addConstraint(Sketcher.Constraint("Coincident", 22, 2, 23, 1))
sketch1.addConstraint(Sketcher.Constraint("Coincident", 23, 2, 24, 1))
sketch1.addConstraint(Sketcher.Constraint("Coincident", 24, 2, 25, 1))
sketch1.addConstraint(Sketcher.Constraint("Coincident", 25, 2, 14, 1))
sketch1.addConstraint(Sketcher.Constraint("Coincident", 26, 2, 27, 1))
sketch1.addConstraint(Sketcher.Constraint("Coincident", 27, 2, 28, 1))
sketch1.addConstraint(Sketcher.Constraint("Coincident", 28, 2, 29, 1))
sketch1.addConstraint(Sketcher.Constraint("Coincident", 29, 2, 26, 1))
sketch1.addConstraint(Sketcher.Constraint("Coincident", 31, 2, 32, 1))
sketch1.addConstraint(Sketcher.Constraint("Coincident", 32, 2, 33, 1))
sketch1.addConstraint(Sketcher.Constraint("Coincident", 38, 2, 39, 1))
sketch1.addConstraint(Sketcher.Constraint("Coincident", 39, 2, 40, 1))
sketch1.addConstraint(Sketcher.Constraint("Coincident", 44, 2, 45, 1))
sketch1.addConstraint(Sketcher.Constraint("Coincident", 45, 2, 46, 1))
sketch1.addConstraint(Sketcher.Constraint("Coincident", 51, 2, 52, 1))
sketch1.addConstraint(Sketcher.Constraint("Coincident", 52, 2, 53, 1))
sketch1.addConstraint(Sketcher.Constraint("Vertical", 0))
sketch1.addConstraint(Sketcher.Constraint("Horizontal", 1))
sketch1.addConstraint(Sketcher.Constraint("Vertical", 2))
sketch1.addConstraint(Sketcher.Constraint("Horizontal", 3))
sketch1.addConstraint(Sketcher.Constraint("Horizontal", 4))
sketch1.addConstraint(Sketcher.Constraint("Vertical", 5))
sketch1.addConstraint(Sketcher.Constraint("Horizontal", 6))
sketch1.addConstraint(Sketcher.Constraint("Vertical", 7))
sketch1.addConstraint(Sketcher.Constraint("Horizontal", 9))
sketch1.addConstraint(Sketcher.Constraint("Vertical", 10))
sketch1.addConstraint(Sketcher.Constraint("Horizontal", 11))
sketch1.addConstraint(Sketcher.Constraint("Vertical", 12))
sketch1.addConstraint(Sketcher.Constraint("Horizontal", 14))
sketch1.addConstraint(Sketcher.Constraint("Vertical", 15))
sketch1.addConstraint(Sketcher.Constraint("Horizontal", 16))
sketch1.addConstraint(Sketcher.Constraint("Vertical", 17))
sketch1.addConstraint(Sketcher.Constraint("Horizontal", 18))
sketch1.addConstraint(Sketcher.Constraint("Vertical", 19))
sketch1.addConstraint(Sketcher.Constraint("Horizontal", 20))
sketch1.addConstraint(Sketcher.Constraint("Vertical", 21))
sketch1.addConstraint(Sketcher.Constraint("Horizontal", 22))
sketch1.addConstraint(Sketcher.Constraint("Vertical", 23))
sketch1.addConstraint(Sketcher.Constraint("Horizontal", 24))
sketch1.addConstraint(Sketcher.Constraint("Vertical", 25))
sketch1.addConstraint(Sketcher.Constraint("Horizontal", 26))
sketch1.addConstraint(Sketcher.Constraint("Vertical", 27))
sketch1.addConstraint(Sketcher.Constraint("Horizontal", 28))
sketch1.addConstraint(Sketcher.Constraint("Vertical", 29))
sketch1.addConstraint(Sketcher.Constraint("Symmetric", 0, 2, 2, 2, -1, 1))
sketch1.addConstraint(Sketcher.Constraint("Horizontal", 13, 2, 14, 2))
sketch1.addConstraint(Sketcher.Constraint("Horizontal", 6, 2, 15, 2))
sketch1.addConstraint(Sketcher.Constraint("Horizontal", 11, 2, 17, 2))
sketch1.addConstraint(Sketcher.Constraint("Horizontal", 16, 2, 26, 2))
sketch1.addConstraint(Sketcher.Constraint("Horizontal", 18, 2, 27, 2))
sketch1.addConstraint(Sketcher.Constraint("Vertical", 15, 2, 18, 2))
sketch1.addConstraint(Sketcher.Constraint("Vertical", 21, 2, 24, 2))
sketch1.addConstraint(Sketcher.Constraint("Equal", 3, 0))
sketch1.addConstraint(Sketcher.Constraint("Equal", 5, 10))
sketch1.addConstraint(Sketcher.Constraint("Equal", 19, 23))
sketch1.addConstraint(Sketcher.Constraint("DistanceX", 1, 1, 1, 2, Q("5 in")))
sketch1.addConstraint(Sketcher.Constraint("DistanceY", 45, 2, 28, 2, Q("0.5937499 in")))
sketch1.addConstraint(Sketcher.Constraint("DistanceX", 4, 1, 4, 2, 9.80543))
sketch1.addConstraint(Sketcher.Constraint("DistanceX", 9, 2, 9, 1, 9.29923))
sketch1.addConstraint(Sketcher.Constraint("DistanceX", 22, 1, 22, 2, 6.750779))
sketch1.addConstraint(Sketcher.Constraint("DistanceX", 26, 2, 26, 1, 4.22851))
sketch1.addConstraint(Sketcher.Constraint("DistanceY", 5, 2, 5, 1, 3.49103))
sketch1.addConstraint(Sketcher.Constraint("DistanceY", 7, 1, 7, 2, 2.740458))
sketch1.addConstraint(Sketcher.Constraint("DistanceY", 21, 2, 21, 1, 4.376878))
sketch1.addConstraint(Sketcher.Constraint("DistanceY", 25, 2, 25, 1, 5.140541))
sketch1.addConstraint(Sketcher.Constraint("DistanceX", 11, 2, -1, 1, 23.008201))
sketch1.addConstraint(Sketcher.Constraint("DistanceX", 16, 2, -1, 1, 19.573901))
sketch1.addConstraint(Sketcher.Constraint("DistanceX", 18, 2, 28, 2, 8.387199))
sketch1.addConstraint(Sketcher.Constraint("Distance", 8, 16.711859))
sketch1.addConstraint(Sketcher.Constraint("DistanceX", 6, 2, 6, 1, 14.836876))
sketch1.addConstraint(Sketcher.Constraint("DistanceX", 11, 1, 11, 2, 14.317586))
sketch1.addConstraint(Sketcher.Constraint("DistanceX", 14, 1, 14, 2, 7.252614))
sketch1.addConstraint(Sketcher.Constraint("DistanceX", 16, 2, 16, 1, 11.481124))
sketch1.addConstraint(Sketcher.Constraint("DistanceY", 12, 2, 12, 1, 2.727367))
sketch1.addConstraint(Sketcher.Constraint("DistanceY", 17, 1, 17, 2, 19.938143))
pad1 = body.newObject("PartDesign::Pad", "Pad")
pad1.Profile = sketch1
pad1.Length = Q("1 in")

# Sketch on XZ plane
sketch2 = body.newObject("Sketcher::SketchObject", "Sketch001")
sketch2.AttachmentSupport = (doc.getObject("XZ_Plane"), [""])
sketch2.MapMode = "FlatFace"
sketch2.AttachmentOffset = App.Placement(Vector(0, 0, 1 * 25.4), App.Rotation())
sketch2.addGeometry(Part.LineSegment(Vector(-64, -64, 0), Vector(64, -64, 0)), False)
sketch2.addGeometry(Part.ArcOfCircle(Part.Circle(Vector(0, -173, 0), Vector(0, 0, 1), 127), math.radians(60), math.radians(120)), False)
sketch2.addConstraint(Sketcher.Constraint("Coincident", 0, 1, 1, 2))
sketch2.addConstraint(Sketcher.Constraint("Coincident", 1, 1, 0, 2))
sketch2.addConstraint(Sketcher.Constraint("Horizontal", 0))
sketch2.addConstraint(Sketcher.Constraint("PointOnObject", 1, 3, -2))
sketch2.addConstraint(Sketcher.Constraint("Radius", 1, Q("5 in")))
sketch2.addConstraint(Sketcher.Constraint("DistanceX", 0, 1, 0, 2, Q("5 in")))
sketch2.addConstraint(Sketcher.Constraint("DistanceY", 0, 1, -1, 1, Q("2.5 in")))
pocket1 = body.newObject("PartDesign::Pocket", "Pocket")
pocket1.Profile = sketch2
pocket1.Length = Q("1 in")

doc.recompute()
